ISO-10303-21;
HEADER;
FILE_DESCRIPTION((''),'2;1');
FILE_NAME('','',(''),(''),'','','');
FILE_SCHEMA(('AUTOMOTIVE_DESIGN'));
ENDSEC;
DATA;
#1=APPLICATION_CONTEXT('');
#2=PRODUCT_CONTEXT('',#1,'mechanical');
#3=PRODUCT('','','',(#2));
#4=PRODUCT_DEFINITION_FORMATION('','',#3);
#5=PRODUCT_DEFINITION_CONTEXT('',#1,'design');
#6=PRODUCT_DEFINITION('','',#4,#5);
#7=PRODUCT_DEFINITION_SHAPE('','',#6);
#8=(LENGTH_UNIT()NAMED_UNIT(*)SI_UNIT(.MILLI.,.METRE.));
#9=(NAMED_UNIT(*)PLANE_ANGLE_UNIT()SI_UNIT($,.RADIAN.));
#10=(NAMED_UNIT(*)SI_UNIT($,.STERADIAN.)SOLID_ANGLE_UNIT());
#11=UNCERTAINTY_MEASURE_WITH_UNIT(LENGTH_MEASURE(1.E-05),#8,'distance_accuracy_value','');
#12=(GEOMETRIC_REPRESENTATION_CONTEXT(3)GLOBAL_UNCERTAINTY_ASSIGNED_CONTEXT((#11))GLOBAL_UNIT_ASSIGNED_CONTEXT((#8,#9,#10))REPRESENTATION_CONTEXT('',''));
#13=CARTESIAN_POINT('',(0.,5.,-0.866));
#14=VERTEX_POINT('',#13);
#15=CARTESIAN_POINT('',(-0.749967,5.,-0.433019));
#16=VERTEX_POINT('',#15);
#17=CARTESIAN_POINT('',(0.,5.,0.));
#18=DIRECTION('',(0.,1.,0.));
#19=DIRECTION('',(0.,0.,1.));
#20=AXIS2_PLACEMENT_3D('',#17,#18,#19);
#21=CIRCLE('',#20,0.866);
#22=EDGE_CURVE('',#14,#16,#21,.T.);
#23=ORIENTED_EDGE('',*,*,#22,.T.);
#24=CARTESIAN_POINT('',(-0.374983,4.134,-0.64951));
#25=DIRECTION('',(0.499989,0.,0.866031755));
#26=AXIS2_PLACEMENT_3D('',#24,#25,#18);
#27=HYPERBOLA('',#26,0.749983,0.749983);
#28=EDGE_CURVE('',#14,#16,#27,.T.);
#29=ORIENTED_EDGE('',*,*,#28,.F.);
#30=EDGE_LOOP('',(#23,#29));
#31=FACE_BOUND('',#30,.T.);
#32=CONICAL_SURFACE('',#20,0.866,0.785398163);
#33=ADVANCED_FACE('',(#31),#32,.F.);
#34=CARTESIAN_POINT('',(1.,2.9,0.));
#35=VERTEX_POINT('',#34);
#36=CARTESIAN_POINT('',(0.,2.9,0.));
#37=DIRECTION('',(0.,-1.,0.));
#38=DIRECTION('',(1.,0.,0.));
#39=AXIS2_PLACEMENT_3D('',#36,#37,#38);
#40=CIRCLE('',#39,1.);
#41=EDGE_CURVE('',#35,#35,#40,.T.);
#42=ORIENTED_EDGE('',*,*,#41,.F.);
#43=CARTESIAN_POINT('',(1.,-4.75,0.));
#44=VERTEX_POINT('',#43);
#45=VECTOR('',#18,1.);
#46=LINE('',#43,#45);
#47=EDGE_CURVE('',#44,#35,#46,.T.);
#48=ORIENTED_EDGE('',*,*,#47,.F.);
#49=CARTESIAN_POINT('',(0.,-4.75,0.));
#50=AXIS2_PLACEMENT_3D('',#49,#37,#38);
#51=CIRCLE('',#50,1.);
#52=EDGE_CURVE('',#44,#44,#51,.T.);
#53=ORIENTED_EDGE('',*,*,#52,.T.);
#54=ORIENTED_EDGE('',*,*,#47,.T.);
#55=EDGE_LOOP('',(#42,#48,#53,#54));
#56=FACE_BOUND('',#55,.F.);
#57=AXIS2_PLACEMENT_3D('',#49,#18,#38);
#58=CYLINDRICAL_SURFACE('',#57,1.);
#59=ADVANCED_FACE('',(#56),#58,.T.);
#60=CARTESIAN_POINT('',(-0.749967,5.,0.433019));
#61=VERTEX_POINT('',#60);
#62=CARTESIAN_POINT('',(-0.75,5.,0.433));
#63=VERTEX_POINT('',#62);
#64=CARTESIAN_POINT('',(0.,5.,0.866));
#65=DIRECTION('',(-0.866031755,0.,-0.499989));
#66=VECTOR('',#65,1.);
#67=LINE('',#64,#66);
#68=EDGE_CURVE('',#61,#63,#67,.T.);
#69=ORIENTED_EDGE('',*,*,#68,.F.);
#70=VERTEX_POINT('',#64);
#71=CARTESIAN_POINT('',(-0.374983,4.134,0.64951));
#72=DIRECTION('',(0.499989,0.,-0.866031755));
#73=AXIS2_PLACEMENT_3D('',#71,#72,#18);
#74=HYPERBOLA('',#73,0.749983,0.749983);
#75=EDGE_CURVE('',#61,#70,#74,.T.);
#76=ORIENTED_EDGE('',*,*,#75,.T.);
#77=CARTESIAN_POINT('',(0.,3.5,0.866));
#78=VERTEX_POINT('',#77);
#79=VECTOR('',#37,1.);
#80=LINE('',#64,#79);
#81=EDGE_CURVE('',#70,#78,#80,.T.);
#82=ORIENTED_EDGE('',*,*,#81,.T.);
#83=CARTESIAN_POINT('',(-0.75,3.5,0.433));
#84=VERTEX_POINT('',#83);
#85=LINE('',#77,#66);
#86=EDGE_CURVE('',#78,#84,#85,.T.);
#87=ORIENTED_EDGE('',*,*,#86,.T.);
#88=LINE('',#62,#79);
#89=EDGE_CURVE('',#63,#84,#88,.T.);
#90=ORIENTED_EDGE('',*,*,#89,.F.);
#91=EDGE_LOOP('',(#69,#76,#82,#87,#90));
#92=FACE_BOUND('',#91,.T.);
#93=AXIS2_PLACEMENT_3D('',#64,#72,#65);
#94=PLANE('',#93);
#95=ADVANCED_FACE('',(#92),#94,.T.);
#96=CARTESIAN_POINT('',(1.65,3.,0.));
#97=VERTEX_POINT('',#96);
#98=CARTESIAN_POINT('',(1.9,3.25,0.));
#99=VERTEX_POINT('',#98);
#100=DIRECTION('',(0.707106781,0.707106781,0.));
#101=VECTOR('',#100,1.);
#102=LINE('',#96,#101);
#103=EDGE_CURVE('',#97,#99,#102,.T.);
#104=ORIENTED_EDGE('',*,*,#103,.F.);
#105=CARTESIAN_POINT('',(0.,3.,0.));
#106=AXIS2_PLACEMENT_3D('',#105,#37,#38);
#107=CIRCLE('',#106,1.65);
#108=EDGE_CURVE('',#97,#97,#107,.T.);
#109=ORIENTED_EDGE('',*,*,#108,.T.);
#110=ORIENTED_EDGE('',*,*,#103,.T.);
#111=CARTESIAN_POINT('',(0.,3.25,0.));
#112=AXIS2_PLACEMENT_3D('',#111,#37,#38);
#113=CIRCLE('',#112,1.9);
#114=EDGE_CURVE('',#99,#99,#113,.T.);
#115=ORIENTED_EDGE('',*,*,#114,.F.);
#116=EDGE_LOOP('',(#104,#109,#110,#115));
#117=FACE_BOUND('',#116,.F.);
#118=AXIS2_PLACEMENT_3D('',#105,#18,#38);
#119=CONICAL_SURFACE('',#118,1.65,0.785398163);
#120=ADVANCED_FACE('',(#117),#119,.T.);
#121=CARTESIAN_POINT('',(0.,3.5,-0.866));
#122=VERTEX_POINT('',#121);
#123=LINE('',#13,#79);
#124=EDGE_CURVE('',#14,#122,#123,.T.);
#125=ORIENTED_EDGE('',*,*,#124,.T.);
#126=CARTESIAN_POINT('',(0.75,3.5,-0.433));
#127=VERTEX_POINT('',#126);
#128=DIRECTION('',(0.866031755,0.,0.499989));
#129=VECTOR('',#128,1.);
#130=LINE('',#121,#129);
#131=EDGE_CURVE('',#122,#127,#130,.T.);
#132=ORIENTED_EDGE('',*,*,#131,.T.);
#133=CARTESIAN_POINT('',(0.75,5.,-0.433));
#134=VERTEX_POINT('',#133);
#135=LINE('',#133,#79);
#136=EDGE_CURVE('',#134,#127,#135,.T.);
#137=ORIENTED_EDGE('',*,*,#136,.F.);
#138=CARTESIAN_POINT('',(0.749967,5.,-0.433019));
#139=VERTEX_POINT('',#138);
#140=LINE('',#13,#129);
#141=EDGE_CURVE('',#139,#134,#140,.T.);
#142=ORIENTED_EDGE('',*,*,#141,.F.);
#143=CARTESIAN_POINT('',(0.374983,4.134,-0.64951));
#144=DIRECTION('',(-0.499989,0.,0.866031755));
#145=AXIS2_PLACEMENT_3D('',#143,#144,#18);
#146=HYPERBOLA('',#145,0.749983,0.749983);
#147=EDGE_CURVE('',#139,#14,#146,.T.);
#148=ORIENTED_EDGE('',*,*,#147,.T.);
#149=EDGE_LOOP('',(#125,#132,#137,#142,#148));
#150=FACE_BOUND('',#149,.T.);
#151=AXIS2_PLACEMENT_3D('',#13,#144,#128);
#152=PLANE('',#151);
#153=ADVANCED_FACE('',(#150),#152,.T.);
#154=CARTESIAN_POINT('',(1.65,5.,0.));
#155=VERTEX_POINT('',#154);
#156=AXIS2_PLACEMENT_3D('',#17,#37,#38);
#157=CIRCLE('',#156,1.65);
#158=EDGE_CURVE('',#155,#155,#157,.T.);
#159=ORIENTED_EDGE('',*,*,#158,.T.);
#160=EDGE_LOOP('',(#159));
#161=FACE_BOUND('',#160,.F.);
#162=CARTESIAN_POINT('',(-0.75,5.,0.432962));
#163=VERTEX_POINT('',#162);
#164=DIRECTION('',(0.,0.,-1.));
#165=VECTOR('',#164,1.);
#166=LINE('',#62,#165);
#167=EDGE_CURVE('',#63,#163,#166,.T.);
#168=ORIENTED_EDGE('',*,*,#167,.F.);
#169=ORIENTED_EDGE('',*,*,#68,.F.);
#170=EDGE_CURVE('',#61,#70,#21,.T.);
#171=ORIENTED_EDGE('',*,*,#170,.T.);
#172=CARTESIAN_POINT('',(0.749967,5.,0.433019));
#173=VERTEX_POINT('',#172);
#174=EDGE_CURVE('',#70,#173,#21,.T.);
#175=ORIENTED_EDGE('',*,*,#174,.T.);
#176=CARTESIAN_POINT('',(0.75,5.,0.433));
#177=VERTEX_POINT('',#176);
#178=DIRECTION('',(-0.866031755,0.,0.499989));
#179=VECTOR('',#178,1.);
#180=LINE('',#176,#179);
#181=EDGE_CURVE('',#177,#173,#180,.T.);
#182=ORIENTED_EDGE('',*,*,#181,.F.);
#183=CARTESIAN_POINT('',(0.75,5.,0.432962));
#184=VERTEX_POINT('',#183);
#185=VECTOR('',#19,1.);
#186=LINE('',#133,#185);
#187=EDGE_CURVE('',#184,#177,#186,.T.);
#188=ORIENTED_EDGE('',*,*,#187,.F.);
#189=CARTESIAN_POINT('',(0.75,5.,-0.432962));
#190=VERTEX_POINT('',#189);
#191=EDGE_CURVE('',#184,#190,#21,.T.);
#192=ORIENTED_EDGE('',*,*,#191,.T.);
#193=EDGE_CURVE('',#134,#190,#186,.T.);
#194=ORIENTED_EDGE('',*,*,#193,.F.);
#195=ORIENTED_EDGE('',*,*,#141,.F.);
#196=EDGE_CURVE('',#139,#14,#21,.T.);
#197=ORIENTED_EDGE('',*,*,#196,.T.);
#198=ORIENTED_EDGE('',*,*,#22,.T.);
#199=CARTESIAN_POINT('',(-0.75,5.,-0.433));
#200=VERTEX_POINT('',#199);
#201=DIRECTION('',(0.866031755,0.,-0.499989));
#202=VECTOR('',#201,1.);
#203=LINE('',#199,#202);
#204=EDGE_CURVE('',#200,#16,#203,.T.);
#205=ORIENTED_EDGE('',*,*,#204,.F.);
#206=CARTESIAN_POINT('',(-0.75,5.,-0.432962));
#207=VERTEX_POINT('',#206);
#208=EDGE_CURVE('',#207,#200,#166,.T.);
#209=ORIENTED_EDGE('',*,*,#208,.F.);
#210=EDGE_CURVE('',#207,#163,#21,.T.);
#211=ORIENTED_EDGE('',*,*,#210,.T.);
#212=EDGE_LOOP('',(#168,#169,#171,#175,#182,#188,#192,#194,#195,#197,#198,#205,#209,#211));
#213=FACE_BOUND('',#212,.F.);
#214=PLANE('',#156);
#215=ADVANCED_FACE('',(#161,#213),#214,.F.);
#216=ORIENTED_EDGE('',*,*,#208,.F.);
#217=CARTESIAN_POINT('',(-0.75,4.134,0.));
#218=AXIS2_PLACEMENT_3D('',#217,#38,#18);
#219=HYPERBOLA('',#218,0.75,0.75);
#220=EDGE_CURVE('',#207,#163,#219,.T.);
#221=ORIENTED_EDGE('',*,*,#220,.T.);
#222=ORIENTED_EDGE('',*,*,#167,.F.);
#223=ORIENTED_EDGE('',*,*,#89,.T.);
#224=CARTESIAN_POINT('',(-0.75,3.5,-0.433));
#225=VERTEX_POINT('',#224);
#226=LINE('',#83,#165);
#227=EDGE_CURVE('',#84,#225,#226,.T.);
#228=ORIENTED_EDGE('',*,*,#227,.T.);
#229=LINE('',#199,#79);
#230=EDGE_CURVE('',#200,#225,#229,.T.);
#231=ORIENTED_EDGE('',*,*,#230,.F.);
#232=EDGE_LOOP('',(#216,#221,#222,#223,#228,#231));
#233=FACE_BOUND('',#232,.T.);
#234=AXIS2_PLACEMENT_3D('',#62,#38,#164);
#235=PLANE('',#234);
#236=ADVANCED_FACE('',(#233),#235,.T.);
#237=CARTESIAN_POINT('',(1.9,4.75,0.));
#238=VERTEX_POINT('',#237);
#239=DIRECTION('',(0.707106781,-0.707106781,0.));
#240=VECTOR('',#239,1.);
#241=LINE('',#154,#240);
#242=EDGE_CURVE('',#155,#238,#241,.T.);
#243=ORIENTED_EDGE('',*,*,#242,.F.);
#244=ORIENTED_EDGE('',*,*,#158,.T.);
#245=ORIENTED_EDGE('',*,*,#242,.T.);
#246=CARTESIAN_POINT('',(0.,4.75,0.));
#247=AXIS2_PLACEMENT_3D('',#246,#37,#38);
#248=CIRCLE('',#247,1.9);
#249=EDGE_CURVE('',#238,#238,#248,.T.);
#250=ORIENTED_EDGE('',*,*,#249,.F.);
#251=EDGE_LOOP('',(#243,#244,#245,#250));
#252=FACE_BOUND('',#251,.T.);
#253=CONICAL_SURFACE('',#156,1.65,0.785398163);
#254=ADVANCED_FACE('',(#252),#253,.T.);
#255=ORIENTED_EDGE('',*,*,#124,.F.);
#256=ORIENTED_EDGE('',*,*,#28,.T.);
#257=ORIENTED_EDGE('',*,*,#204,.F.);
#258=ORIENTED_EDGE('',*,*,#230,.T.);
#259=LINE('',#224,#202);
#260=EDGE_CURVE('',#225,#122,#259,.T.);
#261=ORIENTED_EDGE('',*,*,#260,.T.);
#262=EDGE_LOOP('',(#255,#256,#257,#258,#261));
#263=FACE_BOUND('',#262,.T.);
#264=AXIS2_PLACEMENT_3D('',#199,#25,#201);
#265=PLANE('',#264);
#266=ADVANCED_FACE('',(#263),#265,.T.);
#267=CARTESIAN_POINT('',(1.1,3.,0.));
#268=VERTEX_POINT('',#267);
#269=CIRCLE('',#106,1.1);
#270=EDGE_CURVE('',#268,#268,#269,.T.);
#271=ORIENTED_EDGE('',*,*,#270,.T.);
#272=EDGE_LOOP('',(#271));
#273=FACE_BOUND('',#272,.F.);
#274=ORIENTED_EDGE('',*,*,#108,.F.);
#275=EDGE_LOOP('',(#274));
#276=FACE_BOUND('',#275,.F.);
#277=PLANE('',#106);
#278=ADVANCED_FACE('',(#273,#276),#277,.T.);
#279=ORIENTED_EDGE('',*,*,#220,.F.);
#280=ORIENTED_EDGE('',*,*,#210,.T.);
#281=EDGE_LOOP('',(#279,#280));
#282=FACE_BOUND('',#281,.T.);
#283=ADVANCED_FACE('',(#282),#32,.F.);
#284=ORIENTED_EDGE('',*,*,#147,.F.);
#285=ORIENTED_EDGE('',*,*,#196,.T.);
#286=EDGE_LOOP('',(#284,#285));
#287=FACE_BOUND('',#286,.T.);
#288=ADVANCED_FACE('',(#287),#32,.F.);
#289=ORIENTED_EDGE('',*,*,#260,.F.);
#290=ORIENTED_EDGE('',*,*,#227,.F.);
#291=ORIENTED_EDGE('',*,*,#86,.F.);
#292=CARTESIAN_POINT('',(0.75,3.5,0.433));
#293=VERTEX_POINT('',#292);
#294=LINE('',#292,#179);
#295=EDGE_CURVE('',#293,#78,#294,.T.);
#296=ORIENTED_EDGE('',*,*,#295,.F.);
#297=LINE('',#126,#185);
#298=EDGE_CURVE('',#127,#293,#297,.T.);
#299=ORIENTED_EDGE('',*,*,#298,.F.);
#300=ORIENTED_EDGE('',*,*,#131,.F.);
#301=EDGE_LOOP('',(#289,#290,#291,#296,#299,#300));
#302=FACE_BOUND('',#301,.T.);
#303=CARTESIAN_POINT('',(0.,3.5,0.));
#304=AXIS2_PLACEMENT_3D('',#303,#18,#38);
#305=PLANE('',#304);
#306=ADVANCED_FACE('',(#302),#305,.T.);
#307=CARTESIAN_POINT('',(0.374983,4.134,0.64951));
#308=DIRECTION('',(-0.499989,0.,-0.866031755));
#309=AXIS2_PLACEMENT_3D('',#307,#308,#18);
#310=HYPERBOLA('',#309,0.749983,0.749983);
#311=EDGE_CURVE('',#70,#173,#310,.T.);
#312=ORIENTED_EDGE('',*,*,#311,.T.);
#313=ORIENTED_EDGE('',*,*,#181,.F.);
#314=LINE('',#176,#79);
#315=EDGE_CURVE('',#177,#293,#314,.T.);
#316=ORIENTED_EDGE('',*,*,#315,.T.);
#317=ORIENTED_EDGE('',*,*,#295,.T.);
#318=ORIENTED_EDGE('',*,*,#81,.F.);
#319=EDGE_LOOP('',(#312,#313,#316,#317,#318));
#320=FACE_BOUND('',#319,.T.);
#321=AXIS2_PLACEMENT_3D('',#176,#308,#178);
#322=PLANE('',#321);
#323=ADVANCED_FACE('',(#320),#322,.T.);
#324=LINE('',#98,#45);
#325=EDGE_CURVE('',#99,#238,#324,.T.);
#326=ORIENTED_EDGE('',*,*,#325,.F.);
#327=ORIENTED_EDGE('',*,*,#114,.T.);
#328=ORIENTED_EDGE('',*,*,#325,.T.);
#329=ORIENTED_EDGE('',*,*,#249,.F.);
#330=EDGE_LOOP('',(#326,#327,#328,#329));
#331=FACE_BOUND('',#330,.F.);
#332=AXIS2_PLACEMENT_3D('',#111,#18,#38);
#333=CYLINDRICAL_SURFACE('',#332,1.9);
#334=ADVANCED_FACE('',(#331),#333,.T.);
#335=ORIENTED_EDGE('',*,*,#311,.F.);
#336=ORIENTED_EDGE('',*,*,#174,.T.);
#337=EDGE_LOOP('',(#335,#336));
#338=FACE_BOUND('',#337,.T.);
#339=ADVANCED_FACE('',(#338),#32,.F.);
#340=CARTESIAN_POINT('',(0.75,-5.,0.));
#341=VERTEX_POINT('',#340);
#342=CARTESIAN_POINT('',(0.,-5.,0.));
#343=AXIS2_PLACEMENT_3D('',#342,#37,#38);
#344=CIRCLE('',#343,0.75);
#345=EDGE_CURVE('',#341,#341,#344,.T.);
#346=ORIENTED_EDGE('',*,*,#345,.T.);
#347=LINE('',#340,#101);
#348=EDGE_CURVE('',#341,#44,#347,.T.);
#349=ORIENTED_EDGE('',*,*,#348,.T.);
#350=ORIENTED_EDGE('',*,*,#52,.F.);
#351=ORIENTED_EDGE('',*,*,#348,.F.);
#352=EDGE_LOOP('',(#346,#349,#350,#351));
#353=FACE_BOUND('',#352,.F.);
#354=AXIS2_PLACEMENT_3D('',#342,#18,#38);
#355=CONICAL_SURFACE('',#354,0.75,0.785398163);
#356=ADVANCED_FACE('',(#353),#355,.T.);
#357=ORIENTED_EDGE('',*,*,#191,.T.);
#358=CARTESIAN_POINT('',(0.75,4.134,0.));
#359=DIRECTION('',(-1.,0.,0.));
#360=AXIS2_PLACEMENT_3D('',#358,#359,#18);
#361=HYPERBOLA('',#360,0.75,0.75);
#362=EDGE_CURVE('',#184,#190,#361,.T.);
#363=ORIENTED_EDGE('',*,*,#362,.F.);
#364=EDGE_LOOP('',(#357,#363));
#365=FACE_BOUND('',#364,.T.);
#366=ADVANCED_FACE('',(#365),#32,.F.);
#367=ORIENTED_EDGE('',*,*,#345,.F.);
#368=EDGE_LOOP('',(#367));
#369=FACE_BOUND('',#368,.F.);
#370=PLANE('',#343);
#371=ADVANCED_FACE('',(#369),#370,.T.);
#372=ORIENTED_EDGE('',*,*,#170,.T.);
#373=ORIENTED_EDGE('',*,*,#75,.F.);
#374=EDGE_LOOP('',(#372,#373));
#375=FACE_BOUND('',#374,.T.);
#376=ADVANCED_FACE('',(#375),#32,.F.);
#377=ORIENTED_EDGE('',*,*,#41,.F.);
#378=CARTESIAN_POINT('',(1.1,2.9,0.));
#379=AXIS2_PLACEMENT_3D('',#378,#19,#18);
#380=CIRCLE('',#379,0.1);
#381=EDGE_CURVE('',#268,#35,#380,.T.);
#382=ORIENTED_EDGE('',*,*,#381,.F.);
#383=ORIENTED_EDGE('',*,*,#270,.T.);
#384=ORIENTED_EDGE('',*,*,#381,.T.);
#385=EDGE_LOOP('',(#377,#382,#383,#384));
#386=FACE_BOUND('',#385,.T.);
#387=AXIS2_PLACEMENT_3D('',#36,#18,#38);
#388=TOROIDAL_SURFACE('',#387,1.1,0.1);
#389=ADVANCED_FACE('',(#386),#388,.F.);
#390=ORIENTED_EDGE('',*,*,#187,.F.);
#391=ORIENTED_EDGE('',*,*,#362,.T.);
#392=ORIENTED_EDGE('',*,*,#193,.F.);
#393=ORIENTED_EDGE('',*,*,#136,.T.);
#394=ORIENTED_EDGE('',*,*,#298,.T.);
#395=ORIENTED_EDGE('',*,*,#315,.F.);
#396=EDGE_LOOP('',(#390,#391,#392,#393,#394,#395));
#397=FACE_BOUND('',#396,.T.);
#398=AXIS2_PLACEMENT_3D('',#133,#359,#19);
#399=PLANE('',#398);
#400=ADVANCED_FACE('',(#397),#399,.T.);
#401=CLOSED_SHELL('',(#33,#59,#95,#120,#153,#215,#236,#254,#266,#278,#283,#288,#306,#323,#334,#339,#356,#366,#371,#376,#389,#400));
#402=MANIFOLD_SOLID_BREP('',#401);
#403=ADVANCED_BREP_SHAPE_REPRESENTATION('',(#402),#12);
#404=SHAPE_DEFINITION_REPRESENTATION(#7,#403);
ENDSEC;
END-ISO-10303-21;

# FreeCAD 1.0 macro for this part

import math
import FreeCAD as App
import Part
import Sketcher
from FreeCAD import Vector
Q = App.Units.Quantity

doc = App.newDocument("Part")
params = doc.addObject("Spreadsheet::Sheet", "Params")
for row, (alias, value) in enumerate([
    ("sketch1_radius", "0.1 mm"),
    ("sketch1_width", "1.65 mm"),
    ("revolution_angle", "360 deg"),
    ("pocket1_length", "1.5 mm"),
    ("sketch3_width", "0.5 mm"),
    ("groove_angle", "360 deg"),
], start=1):
    params.set(f"A{row}", alias)
    params.set(f"B{row}", "=" + value)
    params.setAlias(f"B{row}", alias)

body = doc.addObject("PartDesign::Body", "Body")

sketch1 = body.newObject("Sketcher::SketchObject", "Sketch")
sketch1.AttachmentSupport = (doc.getObject("XY_Plane"), [""])
sketch1.MapMode = "FlatFace"
sketch1.addGeometry([
    Part.LineSegment(Vector(1.65, 5, 0), Vector(0, 5, 0)),
    Part.LineSegment(Vector(0, 5, 0), Vector(0, -5, 0)),
    Part.LineSegment(Vector(0, -5, 0), Vector(0.75, -5, 0)),
    Part.LineSegment(Vector(0.75, -5, 0), Vector(1, -4.75, 0)),
    Part.LineSegment(Vector(1, -4.75, 0), Vector(1, 2.9, 0)),
    Part.ArcOfCircle(Part.Circle(Vector(1.1, 2.9, 0), Vector(0, 0, 1), 0.1), math.radians(90), math.radians(180)),
    Part.LineSegment(Vector(1.1, 3, 0), Vector(1.65, 3, 0)),
    Part.LineSegment(Vector(1.65, 3, 0), Vector(1.9, 3.25, 0)),
    Part.LineSegment(Vector(1.9, 3.25, 0), Vector(1.9, 4.75, 0)),
    Part.LineSegment(Vector(1.9, 4.75, 0), Vector(1.65, 5, 0)),
], False)
sketch1.addConstraint([
    Sketcher.Constraint("Coincident", 0, 2, 1, 1),
    Sketcher.Constraint("Coincident", 1, 2, 2, 1),
    Sketcher.Constraint("Coincident", 2, 2, 3, 1),
    Sketcher.Constraint("Coincident", 3, 2, 4, 1),
    Sketcher.Constraint("Tangent", 4, 2, 5, 2),
    Sketcher.Constraint("Tangent", 5, 1, 6, 1),
    Sketcher.Constraint("Coincident", 6, 2, 7, 1),
    Sketcher.Constraint("Coincident", 7, 2, 8, 1),
    Sketcher.Constraint("Coincident", 8, 2, 9, 1),
    Sketcher.Constraint("Coincident", 9, 2, 0, 1),
    Sketcher.Constraint("Horizontal", 0),
    Sketcher.Constraint("Vertical", 1),
    Sketcher.Constraint("Horizontal", 2),
    Sketcher.Constraint("Vertical", 4),
    Sketcher.Constraint("Horizontal", 6),
    Sketcher.Constraint("Vertical", 8),
    Sketcher.Constraint("Symmetric", 0, 2, 1, 2, -1, 1),
    Sketcher.Constraint("Parallel", 3, 7),
    Sketcher.Constraint("Perpendicular", 7, 9),
    Sketcher.Constraint("Vertical", 6, 2, 9, 2),
    Sketcher.Constraint("Equal", 3, 7),
    Sketcher.Constraint("Equal", 7, 9),
    Sketcher.Constraint("DistanceY", 5, 1, 0, 2, 2.0),
    Sketcher.Constraint("DistanceY", 2, 2, 5, 1, 8.0),
    Sketcher.Constraint("Radius", 5, 0.1),
    Sketcher.Constraint("DistanceX", 2, 2, 3, 2, 0.25),
    Sketcher.Constraint("DistanceX", -1, 1, 3, 2, 1.0),
    Sketcher.Constraint("DistanceX", 0, 2, 0, 1, 1.65),
])
sketch1.setExpression("Constraints[24]", "Params.sketch1_radius")
sketch1.setExpression("Constraints[27]", "Params.sketch1_width")
revolution = body.newObject("PartDesign::Revolution", "Revolution")
revolution.Profile = sketch1
revolution.ReferenceAxis = (sketch1, ["V_Axis"])
revolution.setExpression("Angle", "Params.revolution_angle")

sketch2 = body.newObject("Sketcher::SketchObject", "Sketch001")
sketch2.AttachmentSupport = (doc.getObject("XZ_Plane"), [""])
sketch2.MapMode = "FlatFace"
sketch2.AttachmentOffset = App.Placement(Vector(0, 0, -5), App.Rotation())
sketch2.addGeometry([
    Part.LineSegment(Vector(-0.8, 0.4, 0), Vector(0, 0.9, 0)),
    Part.LineSegment(Vector(0, 0.9, 0), Vector(0.8, 0.4, 0)),
    Part.LineSegment(Vector(0.8, 0.4, 0), Vector(0.8, -0.4, 0)),
    Part.LineSegment(Vector(0.8, -0.4, 0), Vector(0, -0.9, 0)),
    Part.LineSegment(Vector(0, -0.9, 0), Vector(-0.8, -0.4, 0)),
    Part.LineSegment(Vector(-0.8, -0.4, 0), Vector(-0.8, 0.4, 0)),
], False)
sketch2.addConstraint([
    Sketcher.Constraint("Coincident", 0, 2, 1, 1),
    Sketcher.Constraint("Coincident", 1, 2, 2, 1),
    Sketcher.Constraint("Coincident", 2, 2, 3, 1),
    Sketcher.Constraint("Coincident", 3, 2, 4, 1),
    Sketcher.Constraint("Coincident", 4, 2, 5, 1),
    Sketcher.Constraint("Coincident", 5, 2, 0, 1),
    Sketcher.Constraint("Vertical", 2),
    Sketcher.Constraint("Vertical", 5),
    Sketcher.Constraint("Symmetric", 0, 2, 3, 2, -1, 1),
    Sketcher.Constraint("Symmetric", 1, 2, 4, 2, -1, 1),
    Sketcher.Constraint("PointOnObject", 0, 2, -2),
    Sketcher.Constraint("Parallel", 0, 3),
    Sketcher.Constraint("Horizontal", 2, 2, 4, 2),
    Sketcher.Constraint("DistanceX", 4, 2, 2, 2, 1.5),
    Sketcher.Constraint("Angle", 0, Q("29.9993 deg")),
    Sketcher.Constraint("DistanceY", 2, 2, 2, 1, 0.866),
])
pocket1 = body.newObject("PartDesign::Pocket", "Pocket")
pocket1.Profile = sketch2
pocket1.setExpression("Length", "Params.pocket1_length")
pocket1.Reversed = True

sketch3 = body.newObject("Sketcher::SketchObject", "Sketch002")
sketch3.AttachmentSupport = (doc.getObject("YZ_Plane"), [""])
sketch3.MapMode = "FlatFace"
sketch3.addGeometry([
    Part.LineSegment(Vector(5, 0.4, 0), Vector(5, 0.9, 0)),
    Part.LineSegment(Vector(5, 0.9, 0), Vector(4.5, 0.4, 0)),
    Part.LineSegment(Vector(4.5, 0.4, 0), Vector(5, 0.4, 0)),
], False)
sketch3.addConstraint([
    Sketcher.Constraint("Coincident", 0, 2, 1, 1),
    Sketcher.Constraint("Coincident", 1, 2, 2, 1),
    Sketcher.Constraint("Coincident", 2, 2, 0, 1),
    Sketcher.Constraint("Vertical", 0),
    Sketcher.Constraint("Horizontal", 2),
    Sketcher.Constraint("Equal", 2, 0),
    Sketcher.Constraint("DistanceX", 2, 1, 2, 2, 0.5),
    Sketcher.Constraint("DistanceX", -1, 1, 0, 2, 5.0),
    Sketcher.Constraint("DistanceY", -1, 1, 0, 2, 0.866),
])
sketch3.setExpression("Constraints[6]", "Params.sketch3_width")
groove = body.newObject("PartDesign::Groove", "Groove")
groove.Profile = sketch3
groove.ReferenceAxis = (sketch3, ["H_Axis"])
groove.setExpression("Angle", "Params.groove_angle")

doc.recompute()
